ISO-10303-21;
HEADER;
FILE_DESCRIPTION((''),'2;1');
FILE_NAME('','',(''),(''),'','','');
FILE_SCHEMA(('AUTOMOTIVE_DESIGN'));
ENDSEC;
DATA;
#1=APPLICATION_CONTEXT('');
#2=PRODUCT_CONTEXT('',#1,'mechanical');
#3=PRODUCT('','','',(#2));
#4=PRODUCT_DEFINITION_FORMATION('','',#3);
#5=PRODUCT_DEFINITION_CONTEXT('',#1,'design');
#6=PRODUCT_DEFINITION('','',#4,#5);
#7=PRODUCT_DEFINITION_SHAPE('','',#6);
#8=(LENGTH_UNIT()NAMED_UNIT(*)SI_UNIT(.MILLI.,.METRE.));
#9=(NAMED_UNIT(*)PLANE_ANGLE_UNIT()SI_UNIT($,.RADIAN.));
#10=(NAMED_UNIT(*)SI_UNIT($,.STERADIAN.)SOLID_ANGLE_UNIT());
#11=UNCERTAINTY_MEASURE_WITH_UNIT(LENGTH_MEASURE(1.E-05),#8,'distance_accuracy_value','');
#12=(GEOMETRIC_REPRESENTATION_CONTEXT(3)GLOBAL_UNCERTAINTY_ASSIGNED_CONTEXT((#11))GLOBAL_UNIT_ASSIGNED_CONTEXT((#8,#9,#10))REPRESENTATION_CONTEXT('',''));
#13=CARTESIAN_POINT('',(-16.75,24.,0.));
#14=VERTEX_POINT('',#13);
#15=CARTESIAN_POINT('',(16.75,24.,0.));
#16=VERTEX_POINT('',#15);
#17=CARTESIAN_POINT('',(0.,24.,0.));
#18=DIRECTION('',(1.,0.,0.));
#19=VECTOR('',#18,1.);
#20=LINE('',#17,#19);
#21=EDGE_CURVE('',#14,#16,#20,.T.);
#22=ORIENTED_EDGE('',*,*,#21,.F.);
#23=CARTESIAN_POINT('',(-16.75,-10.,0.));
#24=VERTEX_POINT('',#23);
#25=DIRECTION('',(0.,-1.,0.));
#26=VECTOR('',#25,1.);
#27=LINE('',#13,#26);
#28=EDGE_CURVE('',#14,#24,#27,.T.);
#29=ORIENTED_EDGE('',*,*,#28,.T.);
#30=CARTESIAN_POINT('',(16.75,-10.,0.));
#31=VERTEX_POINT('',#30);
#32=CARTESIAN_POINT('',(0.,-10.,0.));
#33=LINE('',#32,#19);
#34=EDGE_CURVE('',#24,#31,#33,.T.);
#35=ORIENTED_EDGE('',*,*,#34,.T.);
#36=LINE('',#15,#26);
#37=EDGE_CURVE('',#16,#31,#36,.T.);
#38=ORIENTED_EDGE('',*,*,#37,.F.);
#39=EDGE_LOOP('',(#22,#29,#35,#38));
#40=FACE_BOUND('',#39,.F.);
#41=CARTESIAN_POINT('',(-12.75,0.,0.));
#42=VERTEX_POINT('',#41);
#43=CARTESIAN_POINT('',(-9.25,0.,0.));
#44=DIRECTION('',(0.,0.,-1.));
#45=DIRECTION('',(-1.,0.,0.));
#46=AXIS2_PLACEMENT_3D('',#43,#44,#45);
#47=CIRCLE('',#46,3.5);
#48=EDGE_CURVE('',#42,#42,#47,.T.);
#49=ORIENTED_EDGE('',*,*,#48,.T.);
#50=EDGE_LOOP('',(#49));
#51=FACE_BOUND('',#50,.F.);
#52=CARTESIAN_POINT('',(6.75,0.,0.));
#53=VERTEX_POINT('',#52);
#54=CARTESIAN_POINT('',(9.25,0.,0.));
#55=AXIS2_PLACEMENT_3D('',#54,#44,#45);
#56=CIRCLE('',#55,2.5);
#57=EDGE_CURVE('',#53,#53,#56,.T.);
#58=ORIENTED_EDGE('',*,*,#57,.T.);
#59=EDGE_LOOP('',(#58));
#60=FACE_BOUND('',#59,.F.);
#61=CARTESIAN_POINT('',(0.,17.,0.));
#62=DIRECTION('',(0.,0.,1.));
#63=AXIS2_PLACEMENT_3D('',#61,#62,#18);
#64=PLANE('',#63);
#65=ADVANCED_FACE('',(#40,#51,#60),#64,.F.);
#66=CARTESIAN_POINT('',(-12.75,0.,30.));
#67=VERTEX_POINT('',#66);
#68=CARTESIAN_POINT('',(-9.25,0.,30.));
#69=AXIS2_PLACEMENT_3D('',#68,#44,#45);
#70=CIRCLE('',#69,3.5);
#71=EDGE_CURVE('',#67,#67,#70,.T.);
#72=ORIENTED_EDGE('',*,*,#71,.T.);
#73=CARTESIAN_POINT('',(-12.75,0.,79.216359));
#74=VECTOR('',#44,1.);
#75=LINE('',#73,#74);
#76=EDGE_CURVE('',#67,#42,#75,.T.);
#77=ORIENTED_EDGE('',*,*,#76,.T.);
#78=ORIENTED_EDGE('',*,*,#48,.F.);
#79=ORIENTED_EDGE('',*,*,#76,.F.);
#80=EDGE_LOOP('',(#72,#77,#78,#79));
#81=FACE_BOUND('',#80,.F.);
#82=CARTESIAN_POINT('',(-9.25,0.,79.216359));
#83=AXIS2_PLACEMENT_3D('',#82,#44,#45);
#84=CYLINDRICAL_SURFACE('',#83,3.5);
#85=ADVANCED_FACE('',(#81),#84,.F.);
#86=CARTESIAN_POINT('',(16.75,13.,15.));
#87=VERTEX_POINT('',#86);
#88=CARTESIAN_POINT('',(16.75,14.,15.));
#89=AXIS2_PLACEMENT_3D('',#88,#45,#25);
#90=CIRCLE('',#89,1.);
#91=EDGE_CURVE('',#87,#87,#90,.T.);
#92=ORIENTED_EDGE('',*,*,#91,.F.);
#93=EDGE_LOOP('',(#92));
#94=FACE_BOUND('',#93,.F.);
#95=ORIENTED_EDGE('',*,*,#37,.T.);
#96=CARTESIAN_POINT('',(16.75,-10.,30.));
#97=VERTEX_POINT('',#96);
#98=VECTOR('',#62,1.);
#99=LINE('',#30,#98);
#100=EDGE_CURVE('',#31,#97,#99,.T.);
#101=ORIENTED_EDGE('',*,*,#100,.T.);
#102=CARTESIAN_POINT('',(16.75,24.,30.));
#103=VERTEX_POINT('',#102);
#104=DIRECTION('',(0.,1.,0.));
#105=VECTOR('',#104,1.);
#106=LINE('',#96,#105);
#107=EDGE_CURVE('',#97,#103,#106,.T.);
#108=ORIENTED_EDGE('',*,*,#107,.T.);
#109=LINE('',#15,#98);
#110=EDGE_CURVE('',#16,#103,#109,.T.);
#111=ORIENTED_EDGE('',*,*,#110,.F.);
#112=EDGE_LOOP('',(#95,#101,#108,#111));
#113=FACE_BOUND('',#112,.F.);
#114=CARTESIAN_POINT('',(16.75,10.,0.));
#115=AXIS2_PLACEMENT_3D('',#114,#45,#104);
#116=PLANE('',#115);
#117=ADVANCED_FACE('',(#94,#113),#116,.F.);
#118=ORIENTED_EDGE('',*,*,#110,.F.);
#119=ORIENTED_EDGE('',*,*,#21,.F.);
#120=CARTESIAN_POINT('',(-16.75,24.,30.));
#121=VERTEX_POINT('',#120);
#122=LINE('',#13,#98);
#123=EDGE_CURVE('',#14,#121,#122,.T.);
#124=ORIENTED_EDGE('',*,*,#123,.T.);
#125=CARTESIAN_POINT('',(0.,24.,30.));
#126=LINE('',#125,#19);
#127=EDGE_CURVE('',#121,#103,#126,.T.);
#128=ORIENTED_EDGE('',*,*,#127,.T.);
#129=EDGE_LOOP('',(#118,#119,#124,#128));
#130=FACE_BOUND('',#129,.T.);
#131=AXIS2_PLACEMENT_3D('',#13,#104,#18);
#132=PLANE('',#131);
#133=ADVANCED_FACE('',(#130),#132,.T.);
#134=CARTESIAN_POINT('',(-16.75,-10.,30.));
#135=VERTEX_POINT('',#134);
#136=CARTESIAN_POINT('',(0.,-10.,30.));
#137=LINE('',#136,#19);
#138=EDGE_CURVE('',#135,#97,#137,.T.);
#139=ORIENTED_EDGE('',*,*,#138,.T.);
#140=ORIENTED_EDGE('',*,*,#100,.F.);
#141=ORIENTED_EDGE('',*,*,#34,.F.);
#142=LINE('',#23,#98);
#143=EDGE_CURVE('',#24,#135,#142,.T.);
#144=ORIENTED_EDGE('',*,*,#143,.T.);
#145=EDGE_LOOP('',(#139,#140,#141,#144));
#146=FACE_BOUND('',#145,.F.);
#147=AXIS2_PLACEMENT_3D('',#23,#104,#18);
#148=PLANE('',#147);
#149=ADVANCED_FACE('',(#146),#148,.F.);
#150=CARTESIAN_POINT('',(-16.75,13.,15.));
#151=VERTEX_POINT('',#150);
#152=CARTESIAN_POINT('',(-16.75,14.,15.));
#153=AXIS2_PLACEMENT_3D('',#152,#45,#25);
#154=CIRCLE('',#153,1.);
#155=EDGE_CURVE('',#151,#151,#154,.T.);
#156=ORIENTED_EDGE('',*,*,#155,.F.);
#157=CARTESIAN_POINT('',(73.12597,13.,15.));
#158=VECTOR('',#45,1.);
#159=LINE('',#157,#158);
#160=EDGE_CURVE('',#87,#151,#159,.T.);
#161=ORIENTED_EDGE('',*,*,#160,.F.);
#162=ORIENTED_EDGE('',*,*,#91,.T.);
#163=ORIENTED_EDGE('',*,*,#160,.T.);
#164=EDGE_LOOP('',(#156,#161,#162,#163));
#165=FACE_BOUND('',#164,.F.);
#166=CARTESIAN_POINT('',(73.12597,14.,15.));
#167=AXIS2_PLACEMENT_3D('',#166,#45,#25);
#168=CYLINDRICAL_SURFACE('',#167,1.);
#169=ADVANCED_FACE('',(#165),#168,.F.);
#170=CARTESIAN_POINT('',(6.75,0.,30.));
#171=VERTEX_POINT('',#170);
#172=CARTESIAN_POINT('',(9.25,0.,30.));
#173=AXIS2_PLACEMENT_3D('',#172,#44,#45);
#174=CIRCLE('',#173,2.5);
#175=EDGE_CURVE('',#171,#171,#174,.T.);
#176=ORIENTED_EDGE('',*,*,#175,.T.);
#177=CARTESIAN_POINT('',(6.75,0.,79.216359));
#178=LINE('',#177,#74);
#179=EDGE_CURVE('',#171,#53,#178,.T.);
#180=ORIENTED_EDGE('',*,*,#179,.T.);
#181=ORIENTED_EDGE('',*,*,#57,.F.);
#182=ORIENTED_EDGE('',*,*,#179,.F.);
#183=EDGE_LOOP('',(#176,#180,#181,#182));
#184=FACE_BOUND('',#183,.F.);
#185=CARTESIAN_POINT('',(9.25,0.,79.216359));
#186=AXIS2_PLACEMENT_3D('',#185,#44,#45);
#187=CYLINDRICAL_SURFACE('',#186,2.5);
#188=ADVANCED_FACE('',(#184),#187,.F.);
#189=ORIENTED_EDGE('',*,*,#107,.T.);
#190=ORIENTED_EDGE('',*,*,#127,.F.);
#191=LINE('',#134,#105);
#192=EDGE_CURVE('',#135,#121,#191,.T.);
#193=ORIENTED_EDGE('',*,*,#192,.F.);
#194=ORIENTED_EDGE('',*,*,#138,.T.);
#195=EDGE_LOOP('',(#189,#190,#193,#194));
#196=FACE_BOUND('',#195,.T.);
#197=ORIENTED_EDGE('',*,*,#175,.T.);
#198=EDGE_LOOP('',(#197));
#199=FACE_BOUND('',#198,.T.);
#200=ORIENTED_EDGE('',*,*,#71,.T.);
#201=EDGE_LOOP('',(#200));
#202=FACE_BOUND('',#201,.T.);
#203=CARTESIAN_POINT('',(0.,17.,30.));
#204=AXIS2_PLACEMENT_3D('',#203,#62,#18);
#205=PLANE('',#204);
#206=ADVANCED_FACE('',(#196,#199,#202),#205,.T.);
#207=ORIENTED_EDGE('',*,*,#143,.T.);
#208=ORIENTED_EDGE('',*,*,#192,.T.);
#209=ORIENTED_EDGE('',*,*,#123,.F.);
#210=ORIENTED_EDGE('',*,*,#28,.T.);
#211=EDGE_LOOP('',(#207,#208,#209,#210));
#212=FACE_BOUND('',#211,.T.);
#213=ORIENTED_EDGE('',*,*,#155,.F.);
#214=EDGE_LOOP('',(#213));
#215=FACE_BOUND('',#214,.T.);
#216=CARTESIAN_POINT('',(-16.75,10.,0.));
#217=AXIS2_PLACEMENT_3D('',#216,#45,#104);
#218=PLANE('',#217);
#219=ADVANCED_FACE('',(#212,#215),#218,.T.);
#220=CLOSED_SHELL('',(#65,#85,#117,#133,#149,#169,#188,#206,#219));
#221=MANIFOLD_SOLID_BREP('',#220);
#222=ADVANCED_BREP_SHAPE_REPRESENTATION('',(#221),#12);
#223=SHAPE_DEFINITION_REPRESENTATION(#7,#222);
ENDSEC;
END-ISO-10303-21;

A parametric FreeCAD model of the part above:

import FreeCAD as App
import Part
import Sketcher
from FreeCAD import Vector

doc = App.newDocument("Part")
body = doc.addObject("PartDesign::Body", "Body")

# Sketch on XY plane
sketch1 = doc.addObject("Sketcher::SketchObject", "Sketch")
body.addObject(sketch1)
sketch1.AttachmentSupport = (doc.XY_Plane, [""])
sketch1.MapMode = "FlatFace"
sketch1.addGeometry([
    Part.LineSegment(Vector(-16.75, 10, 0), Vector(-16.75, -10, 0)),
    Part.LineSegment(Vector(-16.75, -10, 0), Vector(16.75, -10, 0)),
    Part.LineSegment(Vector(16.75, -10, 0), Vector(16.75, 10, 0)),
    Part.LineSegment(Vector(16.75, 10, 0), Vector(-16.75, 10, 0)),
], False)
sketch1.addConstraint([
    Sketcher.Constraint("Coincident", 0, 2, 1, 1),
    Sketcher.Constraint("Coincident", 1, 2, 2, 1),
    Sketcher.Constraint("Coincident", 2, 2, 3, 1),
    Sketcher.Constraint("Coincident", 3, 2, 0, 1),
    Sketcher.Constraint("Vertical", 0),
    Sketcher.Constraint("Horizontal", 1),
    Sketcher.Constraint("Vertical", 2),
    Sketcher.Constraint("Horizontal", 3),
    Sketcher.Constraint("Symmetric", 0, 2, 2, 2, -1, 1),
    Sketcher.Constraint("DistanceY", 0, 2, 0, 1, 20.0),
    Sketcher.Constraint("DistanceX", 1, 1, 1, 2, 33.5),
])
pad1 = doc.addObject("PartDesign::Pad", "Pad")
body.addObject(pad1)
pad1.Profile = sketch1
pad1.Length = 30

# Sketch on XY plane
sketch2 = doc.addObject("Sketcher::SketchObject", "Sketch001")
body.addObject(sketch2)
sketch2.AttachmentSupport = (doc.XY_Plane, [""])
sketch2.MapMode = "FlatFace"
sketch2.AttachmentOffset = App.Placement(Vector(0, 0, 30), App.Rotation())
sketch2.addGeometry(Part.Circle(Vector(9.25, 0, 0), Vector(0, 0, 1), 2.5), False)
sketch2.addConstraint([
    Sketcher.Constraint("PointOnObject", 0, 3, -1),
    Sketcher.Constraint("Diameter", 0, 5.0),
    Sketcher.Constraint("DistanceX", -1, 1, 0, 3, 9.25),
])
doc.recompute()
hole = doc.addObject("PartDesign::Hole", "Hole")
body.addObject(hole)
hole.Profile = sketch2
hole.ThreadType = "None"
hole.Diameter = 5
hole.DepthType = "ThroughAll"

# Sketch on XY plane
sketch3 = doc.addObject("Sketcher::SketchObject", "Sketch002")
body.addObject(sketch3)
sketch3.AttachmentSupport = (doc.XY_Plane, [""])
sketch3.MapMode = "FlatFace"
sketch3.AttachmentOffset = App.Placement(Vector(0, 0, 30), App.Rotation())
sketch3.addGeometry(Part.Circle(Vector(-9.25, 0, 0), Vector(0, 0, 1), 3.5), False)
sketch3.addConstraint([
    Sketcher.Constraint("PointOnObject", 0, 3, -1),
    Sketcher.Constraint("Diameter", 0, 7.0),
    Sketcher.Constraint("DistanceX", 0, 3, -1, 1, 9.25),
])
doc.recompute()
hole2 = doc.addObject("PartDesign::Hole", "Hole001")
body.addObject(hole2)
hole2.Profile = sketch3
hole2.ThreadType = "None"
hole2.Diameter = 7
hole2.DepthType = "ThroughAll"

# Sketch on XY plane
sketch4 = doc.addObject("Sketcher::SketchObject", "Sketch003")
body.addObject(sketch4)
sketch4.AttachmentSupport = (doc.XY_Plane, [""])
sketch4.MapMode = "FlatFace"
sketch4.addGeometry([
    Part.LineSegment(Vector(-16.75, 24, 0), Vector(-16.75, 10, 0)),
    Part.LineSegment(Vector(-16.75, 10, 0), Vector(16.75, 10, 0)),
    Part.LineSegment(Vector(16.75, 10, 0), Vector(16.75, 24, 0)),
    Part.LineSegment(Vector(16.75, 24, 0), Vector(-16.75, 24, 0)),
], False)
sketch4.addConstraint([
    Sketcher.Constraint("Coincident", 0, 2, 1, 1),
    Sketcher.Constraint("Coincident", 1, 2, 2, 1),
    Sketcher.Constraint("Coincident", 2, 2, 3, 1),
    Sketcher.Constraint("Coincident", 3, 2, 0, 1),
    Sketcher.Constraint("Vertical", 0),
    Sketcher.Constraint("Horizontal", 1),
    Sketcher.Constraint("Vertical", 2),
    Sketcher.Constraint("Horizontal", 3),
    Sketcher.Constraint("DistanceY", 0, 2, 0, 1, 14.0),
    Sketcher.Constraint("DistanceX", 1, 1, 1, 2, 33.5),
    Sketcher.Constraint("DistanceY", -1, 1, 0, 2, 10.0),
    Sketcher.Constraint("DistanceX", 0, 2, -1, 1, 16.75),
])
pad2 = doc.addObject("PartDesign::Pad", "Pad001")
body.addObject(pad2)
pad2.Profile = sketch4
pad2.Length = 30

# Sketch on YZ plane
sketch5 = doc.addObject("Sketcher::SketchObject", "Sketch004")
body.addObject(sketch5)
sketch5.AttachmentSupport = (doc.YZ_Plane, [""])
sketch5.MapMode = "FlatFace"
sketch5.AttachmentOffset = App.Placement(Vector(0, 0, 16.75), App.Rotation())
sketch5.addGeometry(Part.Circle(Vector(14, 15, 0), Vector(0, 0, 1), 1), False)
sketch5.addConstraint([
    Sketcher.Constraint("Diameter", 0, 2.0),
    Sketcher.Constraint("DistanceX", -1, 1, 0, 3, 14.0),
    Sketcher.Constraint("DistanceY", -1, 1, 0, 3, 15.0),
])
doc.recompute()
hole3 = doc.addObject("PartDesign::Hole", "Hole002")
body.addObject(hole3)
hole3.Profile = sketch5
hole3.ThreadType = "None"
hole3.Diameter = 2
hole3.DepthType = "ThroughAll"

doc.recompute()
